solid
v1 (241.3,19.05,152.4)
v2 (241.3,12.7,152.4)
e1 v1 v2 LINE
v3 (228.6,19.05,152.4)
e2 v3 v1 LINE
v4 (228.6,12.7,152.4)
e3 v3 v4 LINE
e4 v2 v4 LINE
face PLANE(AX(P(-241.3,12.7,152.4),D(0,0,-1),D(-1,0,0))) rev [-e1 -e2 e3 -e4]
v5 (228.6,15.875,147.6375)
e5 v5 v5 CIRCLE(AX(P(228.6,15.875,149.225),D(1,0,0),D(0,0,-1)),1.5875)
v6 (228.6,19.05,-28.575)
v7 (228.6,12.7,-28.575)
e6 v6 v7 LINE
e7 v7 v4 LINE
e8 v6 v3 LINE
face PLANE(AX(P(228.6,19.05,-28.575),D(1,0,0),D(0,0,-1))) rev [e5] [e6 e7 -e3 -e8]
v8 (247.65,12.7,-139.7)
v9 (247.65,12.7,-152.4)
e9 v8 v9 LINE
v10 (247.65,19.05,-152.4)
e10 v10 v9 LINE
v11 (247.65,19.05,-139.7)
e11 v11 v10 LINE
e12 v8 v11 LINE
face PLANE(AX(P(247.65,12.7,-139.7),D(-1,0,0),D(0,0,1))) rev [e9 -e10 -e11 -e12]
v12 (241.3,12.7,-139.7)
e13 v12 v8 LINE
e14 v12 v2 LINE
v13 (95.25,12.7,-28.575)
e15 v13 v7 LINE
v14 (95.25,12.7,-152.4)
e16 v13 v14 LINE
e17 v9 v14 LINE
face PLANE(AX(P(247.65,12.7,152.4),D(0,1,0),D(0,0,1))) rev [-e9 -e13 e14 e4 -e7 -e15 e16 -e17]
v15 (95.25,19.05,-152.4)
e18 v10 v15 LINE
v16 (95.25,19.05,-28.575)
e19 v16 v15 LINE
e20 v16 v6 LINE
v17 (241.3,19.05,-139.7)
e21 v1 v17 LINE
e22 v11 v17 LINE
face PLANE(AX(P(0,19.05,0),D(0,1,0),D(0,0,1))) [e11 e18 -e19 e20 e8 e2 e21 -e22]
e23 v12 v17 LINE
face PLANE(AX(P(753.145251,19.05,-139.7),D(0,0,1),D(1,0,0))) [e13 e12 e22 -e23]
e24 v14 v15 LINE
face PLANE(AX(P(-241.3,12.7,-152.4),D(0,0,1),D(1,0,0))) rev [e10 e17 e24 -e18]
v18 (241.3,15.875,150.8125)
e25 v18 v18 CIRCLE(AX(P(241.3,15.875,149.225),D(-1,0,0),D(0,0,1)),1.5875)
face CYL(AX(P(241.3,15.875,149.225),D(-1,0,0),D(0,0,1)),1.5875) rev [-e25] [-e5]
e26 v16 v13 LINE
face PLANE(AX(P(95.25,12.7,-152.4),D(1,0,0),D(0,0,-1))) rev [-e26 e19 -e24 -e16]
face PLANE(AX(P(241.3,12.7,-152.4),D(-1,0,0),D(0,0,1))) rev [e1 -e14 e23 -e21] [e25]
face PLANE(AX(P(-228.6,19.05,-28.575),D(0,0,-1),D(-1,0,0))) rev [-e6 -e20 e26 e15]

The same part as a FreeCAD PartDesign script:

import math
import FreeCAD as App
import Part
import Sketcher

V = App.Vector
Q = App.Units.Quantity

doc = App.newDocument("Part")
body = doc.addObject("PartDesign::Body", "Body")

# Sketch on XZ plane
sketch1 = doc.addObject("Sketcher::SketchObject", "Sketch")
body.addObject(sketch1)
sketch1.AttachmentSupport = (doc.XZ_Plane, [""])
sketch1.MapMode = "FlatFace"
sketch1.addGeometry([
    Part.LineSegment(V(-241, -152, 0), V(-241, 152, 0)),
    Part.LineSegment(V(-241, 152, 0), V(241, 152, 0)),
    Part.LineSegment(V(241, 152, 0), V(241, -152, 0)),
    Part.LineSegment(V(241, -152, 0), V(-241, -152, 0)),
], False)
sketch1.addConstraint([
    Sketcher.Constraint("Coincident", 0, 2, 1, 1),
    Sketcher.Constraint("Coincident", 1, 2, 2, 1),
    Sketcher.Constraint("Coincident", 2, 2, 3, 1),
    Sketcher.Constraint("Coincident", 3, 2, 0, 1),
    Sketcher.Constraint("Vertical", 0),
    Sketcher.Constraint("Horizontal", 1),
    Sketcher.Constraint("Vertical", 2),
    Sketcher.Constraint("Horizontal", 3),
    Sketcher.Constraint("Symmetric", 0, 2, 2, 2, -1, 1),
    Sketcher.Constraint("DistanceX", 1, 1, 1, 2, Q("19 in")),
    Sketcher.Constraint("DistanceY", 0, 1, 0, 2, Q("12 in")),
])
pad1 = doc.addObject("PartDesign::Pad", "Pad")
body.addObject(pad1)
pad1.Profile = sketch1
pad1.Length = Q("0.5 in")
pad1.Reversed = True

# Sketch on XZ plane
sketch2 = doc.addObject("Sketcher::SketchObject", "Sketch001")
body.addObject(sketch2)
sketch2.AttachmentSupport = (doc.XZ_Plane, [""])
sketch2.MapMode = "FlatFace"
sketch2.AttachmentOffset = App.Placement(V(0, 0, -0.5 * 25.4), App.Rotation())
sketch2.addGeometry([
    Part.LineSegment(V(241, -152, 0), V(-241, -152, 0)),  # 0
    Part.LineSegment(V(-241, -152, 0), V(-241, 152, 0)),  # 1
    Part.LineSegment(V(-241, 152, 0), V(-229, 152, 0)),  # 2
    Part.LineSegment(V(-229, 152, 0), V(-229, -29, 0)),  # 3
    Part.LineSegment(V(-229, -29, 0), V(229, -29, 0)),  # 4
    Part.LineSegment(V(229, -29, 0), V(229, 152, 0)),  # 5
    Part.LineSegment(V(229, 152, 0), V(241, 152, 0)),  # 6
    Part.LineSegment(V(241, 152, 0), V(241, -152, 0)),  # 7
], False)
sketch2.addConstraint([
    Sketcher.Constraint("Coincident", 0, 2, 1, 1),
    Sketcher.Constraint("Coincident", 1, 2, 2, 1),
    Sketcher.Constraint("Coincident", 2, 2, 3, 1),
    Sketcher.Constraint("Coincident", 3, 2, 4, 1),
    Sketcher.Constraint("Coincident", 4, 2, 5, 1),
    Sketcher.Constraint("Coincident", 5, 2, 6, 1),
    Sketcher.Constraint("Coincident", 6, 2, 7, 1),
    Sketcher.Constraint("Coincident", 7, 2, 0, 1),
    Sketcher.Constraint("Horizontal", 0),
    Sketcher.Constraint("Vertical", 1),
    Sketcher.Constraint("Horizontal", 2),
    Sketcher.Constraint("Vertical", 3),
    Sketcher.Constraint("Horizontal", 4),
    Sketcher.Constraint("Vertical", 5),
    Sketcher.Constraint("Horizontal", 6),
    Sketcher.Constraint("Vertical", 7),
    Sketcher.Constraint("Symmetric", 0, 2, 6, 2, -1, 1),
    Sketcher.Constraint("Symmetric", 2, 2, 5, 2, -2),
    Sketcher.Constraint("DistanceX", 0, 2, 0, 1, Q("19 in")),
    Sketcher.Constraint("DistanceX", 4, 1, 4, 2, Q("18 in")),
    Sketcher.Constraint("DistanceY", 1, 1, 1, 2, Q("12 in")),
    Sketcher.Constraint("DistanceY", 3, 2, 3, 1, Q("7.125 in")),
])
pad2 = doc.addObject("PartDesign::Pad", "Pad001")
body.addObject(pad2)
pad2.Profile = sketch2
pad2.Length = Q("0.25 in")
pad2.Reversed = True

# Sketch on YZ plane
sketch3 = doc.addObject("Sketcher::SketchObject", "Sketch002")
body.addObject(sketch3)
sketch3.AttachmentSupport = (doc.YZ_Plane, [""])
sketch3.MapMode = "FlatFace"
sketch3.AttachmentOffset = App.Placement(V(0, 0, -9.5 * 25.4), App.Rotation())
sketch3.addGeometry(Part.Circle(V(15.9, 149.2, 0), V(0, 0, 1), 1.6), False)
sketch3.addConstraint([
    Sketcher.Constraint("Diameter", 0, Q("0.125 in")),
    Sketcher.Constraint("DistanceX", -1, 1, 0, 3, Q("0.625 in")),
    Sketcher.Constraint("DistanceY", -1, 1, 0, 3, Q("5.875 in")),
])
pocket1 = doc.addObject("PartDesign::Pocket", "Pocket")
body.addObject(pocket1)
pocket1.Profile = sketch3
pocket1.Type = "ThroughAll"
pocket1.Reversed = True

# Sketch on XY plane
sketch4 = doc.addObject("Sketcher::SketchObject", "Sketch003")
body.addObject(sketch4)
sketch4.AttachmentSupport = (doc.XY_Plane, [""])
sketch4.MapMode = "FlatFace"
sketch4.AttachmentOffset = App.Placement(V(0, 0, 6 * 25.4), App.Rotation())
sketch4.addGeometry([
    Part.LineSegment(V(-248, 13, 0), V(-248, 0, 0)),
    Part.LineSegment(V(-248, 0, 0), V(-241, 0, 0)),
    Part.LineSegment(V(-241, 0, 0), V(-241, 13, 0)),
    Part.LineSegment(V(-241, 13, 0), V(-248, 13, 0)),
], False)
sketch4.addConstraint([
    Sketcher.Constraint("Coincident", 0, 2, 1, 1),
    Sketcher.Constraint("Coincident", 1, 2, 2, 1),
    Sketcher.Constraint("Coincident", 2, 2, 3, 1),
    Sketcher.Constraint("Coincident", 3, 2, 0, 1),
    Sketcher.Constraint("Vertical", 0),
    Sketcher.Constraint("Horizontal", 1),
    Sketcher.Constraint("Vertical", 2),
    Sketcher.Constraint("Horizontal", 3),
    Sketcher.Constraint("PointOnObject", 0, 2, -1),
    Sketcher.Constraint("DistanceY", 0, 2, 0, 1, Q("0.5 in")),
    Sketcher.Constraint("DistanceX", 1, 1, 1, 2, Q("0.25 in")),
    Sketcher.Constraint("DistanceX", 1, 2, -1, 1, Q("9.5 in")),
])
pad3 = doc.addObject("PartDesign::Pad", "Pad002")
body.addObject(pad3)
pad3.Profile = sketch4
pad3.Length = Q("11.5 in")
pad3.Reversed = True

# Sketch on YZ plane
sketch5 = doc.addObject("Sketcher::SketchObject", "Sketch004")
body.addObject(sketch5)
sketch5.AttachmentSupport = (doc.YZ_Plane, [""])
sketch5.MapMode = "FlatFace"
sketch5.AttachmentOffset = App.Placement(V(0, 0, -9.5 * 25.4), App.Rotation())
sketch5.addGeometry([
    Part.LineSegment(V(19, -152, 0), V(0, -152, 0)),
    Part.LineSegment(V(0, -152, 0), V(0, -140, 0)),
    Part.LineSegment(V(0, -140, 0), V(19, -140, 0)),
    Part.LineSegment(V(19, -140, 0), V(19, -152, 0)),
], False)
sketch5.addConstraint([
    Sketcher.Constraint("Coincident", 0, 2, 1, 1),
    Sketcher.Constraint("Coincident", 1, 2, 2, 1),
    Sketcher.Constraint("Coincident", 2, 2, 3, 1),
    Sketcher.Constraint("Coincident", 3, 2, 0, 1),
    Sketcher.Constraint("Horizontal", 0),
    Sketcher.Constraint("Vertical", 1),
    Sketcher.Constraint("Horizontal", 2),
    Sketcher.Constraint("Vertical", 3),
    Sketcher.Constraint("PointOnObject", 0, 2, -2),
    Sketcher.Constraint("DistanceY", 1, 1, 1, 2, Q("0.5 in")),
    Sketcher.Constraint("DistanceY", 0, 2, -1, 1, Q("6 in")),
    Sketcher.Constraint("DistanceX", 0, 2, 0, 1, Q("0.75 in")),
])
pad4 = doc.addObject("PartDesign::Pad", "Pad003")
body.addObject(pad4)
pad4.Profile = sketch5
pad4.Length = Q("0.25 in")
pad4.Reversed = True
doc.recompute()

mirrored = doc.addObject("PartDesign::Mirrored", "Mirrored")
body.addObject(mirrored)
mirrored.Originals = [pad3, pad4]
mirrored.MirrorPlane = (doc.YZ_Plane, [""])
body.Tip = mirrored

# Sketch on YZ plane
sketch6 = doc.addObject("Sketcher::SketchObject", "Sketch005")
body.addObject(sketch6)
sketch6.AttachmentSupport = (doc.YZ_Plane, [""])
sketch6.MapMode = "FlatFace"
sketch6.AttachmentOffset = App.Placement(V(0, 0, -9.75 * 25.4), App.Rotation())
sketch6.addGeometry([
    Part.LineSegment(V(2.5, 128.3, 0), V(2.5, 147.3, 0)),
    Part.ArcOfCircle(Part.Circle(V(6.3, 147.3, 0), V(0, 0, 1), 3.8), math.radians(0), math.radians(180)),
    Part.LineSegment(V(10.2, 147.3, 0), V(10.2, 128.3, 0)),
    Part.ArcOfCircle(Part.Circle(V(6.3, 128.3, 0), V(0, 0, 1), 3.8), math.radians(180), math.radians(360)),
], False)
sketch6.addConstraint([
    Sketcher.Constraint("Tangent", 0, 2, 1, 2),
    Sketcher.Constraint("Tangent", 1, 1, 2, 1),
    Sketcher.Constraint("Tangent", 2, 2, 3, 2),
    Sketcher.Constraint("Tangent", 3, 1, 0, 1),
    Sketcher.Constraint("Vertical", 0),
    Sketcher.Constraint("Vertical", 2),
    Sketcher.Constraint("Radius", 1, Q("0.15 in")),
    Sketcher.Constraint("DistanceY", 0, 1, 0, 2, Q("0.75 in")),
    Sketcher.Constraint("DistanceY", -1, 1, 1, 3, Q("5.8 in")),
    Sketcher.Constraint("DistanceX", -1, 1, 0, 2, Q("0.1 in")),
])
pocket2 = doc.addObject("PartDesign::Pocket", "Pocket001")
body.addObject(pocket2)
pocket2.Profile = sketch6
pocket2.Length = Q("1 in")
pocket2.Reversed = True

# Sketch on YZ plane
sketch7 = doc.addObject("Sketcher::SketchObject", "Sketch006")
body.addObject(sketch7)
sketch7.AttachmentSupport = (doc.YZ_Plane, [""])
sketch7.MapMode = "FlatFace"
sketch7.AttachmentOffset = App.Placement(V(0, 0, 9.75 * 25.4), App.Rotation())
sketch7.addGeometry([
    Part.LineSegment(V(2.5, 128.3, 0), V(2.5, 147.3, 0)),
    Part.ArcOfCircle(Part.Circle(V(6.3, 147.3, 0), V(0, 0, 1), 3.8), math.radians(0), math.radians(180)),
    Part.LineSegment(V(10.2, 147.3, 0), V(10.2, 128.3, 0)),
    Part.ArcOfCircle(Part.Circle(V(6.3, 128.3, 0), V(0, 0, 1), 3.8), math.radians(180), math.radians(360)),
], False)
sketch7.addConstraint([
    Sketcher.Constraint("Tangent", 0, 2, 1, 2),
    Sketcher.Constraint("Tangent", 1, 1, 2, 1),
    Sketcher.Constraint("Tangent", 2, 2, 3, 2),
    Sketcher.Constraint("Tangent", 3, 1, 0, 1),
    Sketcher.Constraint("Vertical", 0),
    Sketcher.Constraint("Vertical", 2),
    Sketcher.Constraint("Radius", 1, Q("0.15 in")),
    Sketcher.Constraint("DistanceY", 0, 1, 0, 2, Q("0.75 in")),
    Sketcher.Constraint("DistanceY", -1, 1, 1, 3, Q("5.8 in")),
    Sketcher.Constraint("DistanceX", -1, 1, 0, 2, Q("0.1 in")),
])
pocket3 = doc.addObject("PartDesign::Pocket", "Pocket002")
body.addObject(pocket3)
pocket3.Profile = sketch7
pocket3.Length = Q("1 in")

# Sketch on XZ plane
sketch8 = doc.addObject("Sketcher::SketchObject", "Sketch007")
body.addObject(sketch8)
sketch8.AttachmentSupport = (doc.XZ_Plane, [""])
sketch8.MapMode = "FlatFace"
sketch8.AttachmentOffset = App.Placement(V(0, 0, -0.1 * 25.4), App.Rotation())
sketch8.addGeometry([
    Part.LineSegment(V(-248, 124, 0), V(-222, 124, 0)),
    Part.LineSegment(V(-222, 124, 0), V(-222, 141, 0)),
    Part.LineSegment(V(-222, 141, 0), V(-248, 124, 0)),
], False)
sketch8.addConstraint([
    Sketcher.Constraint("Coincident", 0, 2, 1, 1),
    Sketcher.Constraint("Coincident", 1, 2, 2, 1),
    Sketcher.Constraint("Coincident", 2, 2, 0, 1),
    Sketcher.Constraint("Horizontal", 0),
    Sketcher.Constraint("Vertical", 1),
    Sketcher.Constraint("DistanceX", 0, 1, 0, 2, Q("1 in")),
    Sketcher.Constraint("DistanceY", 1, 1, 1, 2, Q("0.65 in")),
    Sketcher.Constraint("DistanceY", -1, 1, 0, 2, Q("4.9 in")),
    Sketcher.Constraint("DistanceX", 0, 2, -1, 1, Q("8.75 in")),
])
pad5 = doc.addObject("PartDesign::Pad", "Pad004")
body.addObject(pad5)
pad5.Profile = sketch8
pad5.Length = Q("0.3 in")
pad5.Reversed = True
doc.recompute()

mirrored2 = doc.addObject("PartDesign::Mirrored", "Mirrored001")
body.addObject(mirrored2)
mirrored2.Originals = [pad5]
mirrored2.MirrorPlane = (doc.YZ_Plane, [""])
body.Tip = mirrored2

# Sketch on YZ plane
sketch9 = doc.addObject("Sketcher::SketchObject", "Sketch008")
body.addObject(sketch9)
sketch9.AttachmentSupport = (doc.YZ_Plane, [""])
sketch9.MapMode = "FlatFace"
sketch9.AttachmentOffset = App.Placement(V(0, 0, -9.75 * 25.4), App.Rotation())
sketch9.addGeometry([
    Part.LineSegment(V(13, -152, 0), V(0, -152, 0)),
    Part.LineSegment(V(0, -152, 0), V(0, 152, 0)),
    Part.LineSegment(V(0, 152, 0), V(13, 152, 0)),
    Part.LineSegment(V(13, 152, 0), V(13, -152, 0)),
], False)
sketch9.addConstraint([
    Sketcher.Constraint("Coincident", 0, 2, 1, 1),
    Sketcher.Constraint("Coincident", 1, 2, 2, 1),
    Sketcher.Constraint("Coincident", 2, 2, 3, 1),
    Sketcher.Constraint("Coincident", 3, 2, 0, 1),
    Sketcher.Constraint("Horizontal", 0),
    Sketcher.Constraint("Vertical", 1),
    Sketcher.Constraint("Horizontal", 2),
    Sketcher.Constraint("Vertical", 3),
    Sketcher.Constraint("Symmetric", 0, 2, 1, 2, -1, 1),
    Sketcher.Constraint("DistanceY", 1, 1, 1, 2, Q("12 in")),
    Sketcher.Constraint("DistanceX", 0, 2, 0, 1, Q("0.5 in")),
])
pocket4 = doc.addObject("PartDesign::Pocket", "Pocket003")
body.addObject(pocket4)
pocket4.Profile = sketch9
pocket4.Type = "ThroughAll"
pocket4.Reversed = True

# Sketch on XZ plane
sketch10 = doc.addObject("Sketcher::SketchObject", "Sketch009")
body.addObject(sketch10)
sketch10.AttachmentSupport = (doc.XZ_Plane, [""])
sketch10.MapMode = "FlatFace"
sketch10.AttachmentOffset = App.Placement(V(0, 0, -0.75 * 25.4), App.Rotation())
sketch10.addGeometry([
    Part.LineSegment(V(-274, -152, 0), V(-274, 156, 0)),
    Part.LineSegment(V(-274, 156, 0), V(95, 156, 0)),
    Part.LineSegment(V(95, 156, 0), V(95, -152, 0)),
    Part.LineSegment(V(95, -152, 0), V(-274, -152, 0)),
], False)
sketch10.addConstraint([
    Sketcher.Constraint("Coincident", 0, 2, 1, 1),
    Sketcher.Constraint("Coincident", 1, 2, 2, 1),
    Sketcher.Constraint("Coincident", 2, 2, 3, 1),
    Sketcher.Constraint("Coincident", 3, 2, 0, 1),
    Sketcher.Constraint("Vertical", 0),
    Sketcher.Constraint("Horizontal", 1),
    Sketcher.Constraint("Vertical", 2),
    Sketcher.Constraint("Horizontal", 3),
    Sketcher.Constraint("DistanceY", 2, 2, -1, 1, Q("6 in")),
    Sketcher.Constraint("DistanceX", -1, 1, 1, 2, Q("3.75 in")),
    Sketcher.Constraint("DistanceY", 0, 1, 0, 2, Q("308.023192 mm")),
    Sketcher.Constraint("DistanceX", 1, 1, 1, 2, Q("369.208963 mm")),
])
pocket5 = doc.addObject("PartDesign::Pocket", "Pocket004")
body.addObject(pocket5)
pocket5.Profile = sketch10
pocket5.Type = "ThroughAll"
pocket5.Reversed = True

doc.recompute()
